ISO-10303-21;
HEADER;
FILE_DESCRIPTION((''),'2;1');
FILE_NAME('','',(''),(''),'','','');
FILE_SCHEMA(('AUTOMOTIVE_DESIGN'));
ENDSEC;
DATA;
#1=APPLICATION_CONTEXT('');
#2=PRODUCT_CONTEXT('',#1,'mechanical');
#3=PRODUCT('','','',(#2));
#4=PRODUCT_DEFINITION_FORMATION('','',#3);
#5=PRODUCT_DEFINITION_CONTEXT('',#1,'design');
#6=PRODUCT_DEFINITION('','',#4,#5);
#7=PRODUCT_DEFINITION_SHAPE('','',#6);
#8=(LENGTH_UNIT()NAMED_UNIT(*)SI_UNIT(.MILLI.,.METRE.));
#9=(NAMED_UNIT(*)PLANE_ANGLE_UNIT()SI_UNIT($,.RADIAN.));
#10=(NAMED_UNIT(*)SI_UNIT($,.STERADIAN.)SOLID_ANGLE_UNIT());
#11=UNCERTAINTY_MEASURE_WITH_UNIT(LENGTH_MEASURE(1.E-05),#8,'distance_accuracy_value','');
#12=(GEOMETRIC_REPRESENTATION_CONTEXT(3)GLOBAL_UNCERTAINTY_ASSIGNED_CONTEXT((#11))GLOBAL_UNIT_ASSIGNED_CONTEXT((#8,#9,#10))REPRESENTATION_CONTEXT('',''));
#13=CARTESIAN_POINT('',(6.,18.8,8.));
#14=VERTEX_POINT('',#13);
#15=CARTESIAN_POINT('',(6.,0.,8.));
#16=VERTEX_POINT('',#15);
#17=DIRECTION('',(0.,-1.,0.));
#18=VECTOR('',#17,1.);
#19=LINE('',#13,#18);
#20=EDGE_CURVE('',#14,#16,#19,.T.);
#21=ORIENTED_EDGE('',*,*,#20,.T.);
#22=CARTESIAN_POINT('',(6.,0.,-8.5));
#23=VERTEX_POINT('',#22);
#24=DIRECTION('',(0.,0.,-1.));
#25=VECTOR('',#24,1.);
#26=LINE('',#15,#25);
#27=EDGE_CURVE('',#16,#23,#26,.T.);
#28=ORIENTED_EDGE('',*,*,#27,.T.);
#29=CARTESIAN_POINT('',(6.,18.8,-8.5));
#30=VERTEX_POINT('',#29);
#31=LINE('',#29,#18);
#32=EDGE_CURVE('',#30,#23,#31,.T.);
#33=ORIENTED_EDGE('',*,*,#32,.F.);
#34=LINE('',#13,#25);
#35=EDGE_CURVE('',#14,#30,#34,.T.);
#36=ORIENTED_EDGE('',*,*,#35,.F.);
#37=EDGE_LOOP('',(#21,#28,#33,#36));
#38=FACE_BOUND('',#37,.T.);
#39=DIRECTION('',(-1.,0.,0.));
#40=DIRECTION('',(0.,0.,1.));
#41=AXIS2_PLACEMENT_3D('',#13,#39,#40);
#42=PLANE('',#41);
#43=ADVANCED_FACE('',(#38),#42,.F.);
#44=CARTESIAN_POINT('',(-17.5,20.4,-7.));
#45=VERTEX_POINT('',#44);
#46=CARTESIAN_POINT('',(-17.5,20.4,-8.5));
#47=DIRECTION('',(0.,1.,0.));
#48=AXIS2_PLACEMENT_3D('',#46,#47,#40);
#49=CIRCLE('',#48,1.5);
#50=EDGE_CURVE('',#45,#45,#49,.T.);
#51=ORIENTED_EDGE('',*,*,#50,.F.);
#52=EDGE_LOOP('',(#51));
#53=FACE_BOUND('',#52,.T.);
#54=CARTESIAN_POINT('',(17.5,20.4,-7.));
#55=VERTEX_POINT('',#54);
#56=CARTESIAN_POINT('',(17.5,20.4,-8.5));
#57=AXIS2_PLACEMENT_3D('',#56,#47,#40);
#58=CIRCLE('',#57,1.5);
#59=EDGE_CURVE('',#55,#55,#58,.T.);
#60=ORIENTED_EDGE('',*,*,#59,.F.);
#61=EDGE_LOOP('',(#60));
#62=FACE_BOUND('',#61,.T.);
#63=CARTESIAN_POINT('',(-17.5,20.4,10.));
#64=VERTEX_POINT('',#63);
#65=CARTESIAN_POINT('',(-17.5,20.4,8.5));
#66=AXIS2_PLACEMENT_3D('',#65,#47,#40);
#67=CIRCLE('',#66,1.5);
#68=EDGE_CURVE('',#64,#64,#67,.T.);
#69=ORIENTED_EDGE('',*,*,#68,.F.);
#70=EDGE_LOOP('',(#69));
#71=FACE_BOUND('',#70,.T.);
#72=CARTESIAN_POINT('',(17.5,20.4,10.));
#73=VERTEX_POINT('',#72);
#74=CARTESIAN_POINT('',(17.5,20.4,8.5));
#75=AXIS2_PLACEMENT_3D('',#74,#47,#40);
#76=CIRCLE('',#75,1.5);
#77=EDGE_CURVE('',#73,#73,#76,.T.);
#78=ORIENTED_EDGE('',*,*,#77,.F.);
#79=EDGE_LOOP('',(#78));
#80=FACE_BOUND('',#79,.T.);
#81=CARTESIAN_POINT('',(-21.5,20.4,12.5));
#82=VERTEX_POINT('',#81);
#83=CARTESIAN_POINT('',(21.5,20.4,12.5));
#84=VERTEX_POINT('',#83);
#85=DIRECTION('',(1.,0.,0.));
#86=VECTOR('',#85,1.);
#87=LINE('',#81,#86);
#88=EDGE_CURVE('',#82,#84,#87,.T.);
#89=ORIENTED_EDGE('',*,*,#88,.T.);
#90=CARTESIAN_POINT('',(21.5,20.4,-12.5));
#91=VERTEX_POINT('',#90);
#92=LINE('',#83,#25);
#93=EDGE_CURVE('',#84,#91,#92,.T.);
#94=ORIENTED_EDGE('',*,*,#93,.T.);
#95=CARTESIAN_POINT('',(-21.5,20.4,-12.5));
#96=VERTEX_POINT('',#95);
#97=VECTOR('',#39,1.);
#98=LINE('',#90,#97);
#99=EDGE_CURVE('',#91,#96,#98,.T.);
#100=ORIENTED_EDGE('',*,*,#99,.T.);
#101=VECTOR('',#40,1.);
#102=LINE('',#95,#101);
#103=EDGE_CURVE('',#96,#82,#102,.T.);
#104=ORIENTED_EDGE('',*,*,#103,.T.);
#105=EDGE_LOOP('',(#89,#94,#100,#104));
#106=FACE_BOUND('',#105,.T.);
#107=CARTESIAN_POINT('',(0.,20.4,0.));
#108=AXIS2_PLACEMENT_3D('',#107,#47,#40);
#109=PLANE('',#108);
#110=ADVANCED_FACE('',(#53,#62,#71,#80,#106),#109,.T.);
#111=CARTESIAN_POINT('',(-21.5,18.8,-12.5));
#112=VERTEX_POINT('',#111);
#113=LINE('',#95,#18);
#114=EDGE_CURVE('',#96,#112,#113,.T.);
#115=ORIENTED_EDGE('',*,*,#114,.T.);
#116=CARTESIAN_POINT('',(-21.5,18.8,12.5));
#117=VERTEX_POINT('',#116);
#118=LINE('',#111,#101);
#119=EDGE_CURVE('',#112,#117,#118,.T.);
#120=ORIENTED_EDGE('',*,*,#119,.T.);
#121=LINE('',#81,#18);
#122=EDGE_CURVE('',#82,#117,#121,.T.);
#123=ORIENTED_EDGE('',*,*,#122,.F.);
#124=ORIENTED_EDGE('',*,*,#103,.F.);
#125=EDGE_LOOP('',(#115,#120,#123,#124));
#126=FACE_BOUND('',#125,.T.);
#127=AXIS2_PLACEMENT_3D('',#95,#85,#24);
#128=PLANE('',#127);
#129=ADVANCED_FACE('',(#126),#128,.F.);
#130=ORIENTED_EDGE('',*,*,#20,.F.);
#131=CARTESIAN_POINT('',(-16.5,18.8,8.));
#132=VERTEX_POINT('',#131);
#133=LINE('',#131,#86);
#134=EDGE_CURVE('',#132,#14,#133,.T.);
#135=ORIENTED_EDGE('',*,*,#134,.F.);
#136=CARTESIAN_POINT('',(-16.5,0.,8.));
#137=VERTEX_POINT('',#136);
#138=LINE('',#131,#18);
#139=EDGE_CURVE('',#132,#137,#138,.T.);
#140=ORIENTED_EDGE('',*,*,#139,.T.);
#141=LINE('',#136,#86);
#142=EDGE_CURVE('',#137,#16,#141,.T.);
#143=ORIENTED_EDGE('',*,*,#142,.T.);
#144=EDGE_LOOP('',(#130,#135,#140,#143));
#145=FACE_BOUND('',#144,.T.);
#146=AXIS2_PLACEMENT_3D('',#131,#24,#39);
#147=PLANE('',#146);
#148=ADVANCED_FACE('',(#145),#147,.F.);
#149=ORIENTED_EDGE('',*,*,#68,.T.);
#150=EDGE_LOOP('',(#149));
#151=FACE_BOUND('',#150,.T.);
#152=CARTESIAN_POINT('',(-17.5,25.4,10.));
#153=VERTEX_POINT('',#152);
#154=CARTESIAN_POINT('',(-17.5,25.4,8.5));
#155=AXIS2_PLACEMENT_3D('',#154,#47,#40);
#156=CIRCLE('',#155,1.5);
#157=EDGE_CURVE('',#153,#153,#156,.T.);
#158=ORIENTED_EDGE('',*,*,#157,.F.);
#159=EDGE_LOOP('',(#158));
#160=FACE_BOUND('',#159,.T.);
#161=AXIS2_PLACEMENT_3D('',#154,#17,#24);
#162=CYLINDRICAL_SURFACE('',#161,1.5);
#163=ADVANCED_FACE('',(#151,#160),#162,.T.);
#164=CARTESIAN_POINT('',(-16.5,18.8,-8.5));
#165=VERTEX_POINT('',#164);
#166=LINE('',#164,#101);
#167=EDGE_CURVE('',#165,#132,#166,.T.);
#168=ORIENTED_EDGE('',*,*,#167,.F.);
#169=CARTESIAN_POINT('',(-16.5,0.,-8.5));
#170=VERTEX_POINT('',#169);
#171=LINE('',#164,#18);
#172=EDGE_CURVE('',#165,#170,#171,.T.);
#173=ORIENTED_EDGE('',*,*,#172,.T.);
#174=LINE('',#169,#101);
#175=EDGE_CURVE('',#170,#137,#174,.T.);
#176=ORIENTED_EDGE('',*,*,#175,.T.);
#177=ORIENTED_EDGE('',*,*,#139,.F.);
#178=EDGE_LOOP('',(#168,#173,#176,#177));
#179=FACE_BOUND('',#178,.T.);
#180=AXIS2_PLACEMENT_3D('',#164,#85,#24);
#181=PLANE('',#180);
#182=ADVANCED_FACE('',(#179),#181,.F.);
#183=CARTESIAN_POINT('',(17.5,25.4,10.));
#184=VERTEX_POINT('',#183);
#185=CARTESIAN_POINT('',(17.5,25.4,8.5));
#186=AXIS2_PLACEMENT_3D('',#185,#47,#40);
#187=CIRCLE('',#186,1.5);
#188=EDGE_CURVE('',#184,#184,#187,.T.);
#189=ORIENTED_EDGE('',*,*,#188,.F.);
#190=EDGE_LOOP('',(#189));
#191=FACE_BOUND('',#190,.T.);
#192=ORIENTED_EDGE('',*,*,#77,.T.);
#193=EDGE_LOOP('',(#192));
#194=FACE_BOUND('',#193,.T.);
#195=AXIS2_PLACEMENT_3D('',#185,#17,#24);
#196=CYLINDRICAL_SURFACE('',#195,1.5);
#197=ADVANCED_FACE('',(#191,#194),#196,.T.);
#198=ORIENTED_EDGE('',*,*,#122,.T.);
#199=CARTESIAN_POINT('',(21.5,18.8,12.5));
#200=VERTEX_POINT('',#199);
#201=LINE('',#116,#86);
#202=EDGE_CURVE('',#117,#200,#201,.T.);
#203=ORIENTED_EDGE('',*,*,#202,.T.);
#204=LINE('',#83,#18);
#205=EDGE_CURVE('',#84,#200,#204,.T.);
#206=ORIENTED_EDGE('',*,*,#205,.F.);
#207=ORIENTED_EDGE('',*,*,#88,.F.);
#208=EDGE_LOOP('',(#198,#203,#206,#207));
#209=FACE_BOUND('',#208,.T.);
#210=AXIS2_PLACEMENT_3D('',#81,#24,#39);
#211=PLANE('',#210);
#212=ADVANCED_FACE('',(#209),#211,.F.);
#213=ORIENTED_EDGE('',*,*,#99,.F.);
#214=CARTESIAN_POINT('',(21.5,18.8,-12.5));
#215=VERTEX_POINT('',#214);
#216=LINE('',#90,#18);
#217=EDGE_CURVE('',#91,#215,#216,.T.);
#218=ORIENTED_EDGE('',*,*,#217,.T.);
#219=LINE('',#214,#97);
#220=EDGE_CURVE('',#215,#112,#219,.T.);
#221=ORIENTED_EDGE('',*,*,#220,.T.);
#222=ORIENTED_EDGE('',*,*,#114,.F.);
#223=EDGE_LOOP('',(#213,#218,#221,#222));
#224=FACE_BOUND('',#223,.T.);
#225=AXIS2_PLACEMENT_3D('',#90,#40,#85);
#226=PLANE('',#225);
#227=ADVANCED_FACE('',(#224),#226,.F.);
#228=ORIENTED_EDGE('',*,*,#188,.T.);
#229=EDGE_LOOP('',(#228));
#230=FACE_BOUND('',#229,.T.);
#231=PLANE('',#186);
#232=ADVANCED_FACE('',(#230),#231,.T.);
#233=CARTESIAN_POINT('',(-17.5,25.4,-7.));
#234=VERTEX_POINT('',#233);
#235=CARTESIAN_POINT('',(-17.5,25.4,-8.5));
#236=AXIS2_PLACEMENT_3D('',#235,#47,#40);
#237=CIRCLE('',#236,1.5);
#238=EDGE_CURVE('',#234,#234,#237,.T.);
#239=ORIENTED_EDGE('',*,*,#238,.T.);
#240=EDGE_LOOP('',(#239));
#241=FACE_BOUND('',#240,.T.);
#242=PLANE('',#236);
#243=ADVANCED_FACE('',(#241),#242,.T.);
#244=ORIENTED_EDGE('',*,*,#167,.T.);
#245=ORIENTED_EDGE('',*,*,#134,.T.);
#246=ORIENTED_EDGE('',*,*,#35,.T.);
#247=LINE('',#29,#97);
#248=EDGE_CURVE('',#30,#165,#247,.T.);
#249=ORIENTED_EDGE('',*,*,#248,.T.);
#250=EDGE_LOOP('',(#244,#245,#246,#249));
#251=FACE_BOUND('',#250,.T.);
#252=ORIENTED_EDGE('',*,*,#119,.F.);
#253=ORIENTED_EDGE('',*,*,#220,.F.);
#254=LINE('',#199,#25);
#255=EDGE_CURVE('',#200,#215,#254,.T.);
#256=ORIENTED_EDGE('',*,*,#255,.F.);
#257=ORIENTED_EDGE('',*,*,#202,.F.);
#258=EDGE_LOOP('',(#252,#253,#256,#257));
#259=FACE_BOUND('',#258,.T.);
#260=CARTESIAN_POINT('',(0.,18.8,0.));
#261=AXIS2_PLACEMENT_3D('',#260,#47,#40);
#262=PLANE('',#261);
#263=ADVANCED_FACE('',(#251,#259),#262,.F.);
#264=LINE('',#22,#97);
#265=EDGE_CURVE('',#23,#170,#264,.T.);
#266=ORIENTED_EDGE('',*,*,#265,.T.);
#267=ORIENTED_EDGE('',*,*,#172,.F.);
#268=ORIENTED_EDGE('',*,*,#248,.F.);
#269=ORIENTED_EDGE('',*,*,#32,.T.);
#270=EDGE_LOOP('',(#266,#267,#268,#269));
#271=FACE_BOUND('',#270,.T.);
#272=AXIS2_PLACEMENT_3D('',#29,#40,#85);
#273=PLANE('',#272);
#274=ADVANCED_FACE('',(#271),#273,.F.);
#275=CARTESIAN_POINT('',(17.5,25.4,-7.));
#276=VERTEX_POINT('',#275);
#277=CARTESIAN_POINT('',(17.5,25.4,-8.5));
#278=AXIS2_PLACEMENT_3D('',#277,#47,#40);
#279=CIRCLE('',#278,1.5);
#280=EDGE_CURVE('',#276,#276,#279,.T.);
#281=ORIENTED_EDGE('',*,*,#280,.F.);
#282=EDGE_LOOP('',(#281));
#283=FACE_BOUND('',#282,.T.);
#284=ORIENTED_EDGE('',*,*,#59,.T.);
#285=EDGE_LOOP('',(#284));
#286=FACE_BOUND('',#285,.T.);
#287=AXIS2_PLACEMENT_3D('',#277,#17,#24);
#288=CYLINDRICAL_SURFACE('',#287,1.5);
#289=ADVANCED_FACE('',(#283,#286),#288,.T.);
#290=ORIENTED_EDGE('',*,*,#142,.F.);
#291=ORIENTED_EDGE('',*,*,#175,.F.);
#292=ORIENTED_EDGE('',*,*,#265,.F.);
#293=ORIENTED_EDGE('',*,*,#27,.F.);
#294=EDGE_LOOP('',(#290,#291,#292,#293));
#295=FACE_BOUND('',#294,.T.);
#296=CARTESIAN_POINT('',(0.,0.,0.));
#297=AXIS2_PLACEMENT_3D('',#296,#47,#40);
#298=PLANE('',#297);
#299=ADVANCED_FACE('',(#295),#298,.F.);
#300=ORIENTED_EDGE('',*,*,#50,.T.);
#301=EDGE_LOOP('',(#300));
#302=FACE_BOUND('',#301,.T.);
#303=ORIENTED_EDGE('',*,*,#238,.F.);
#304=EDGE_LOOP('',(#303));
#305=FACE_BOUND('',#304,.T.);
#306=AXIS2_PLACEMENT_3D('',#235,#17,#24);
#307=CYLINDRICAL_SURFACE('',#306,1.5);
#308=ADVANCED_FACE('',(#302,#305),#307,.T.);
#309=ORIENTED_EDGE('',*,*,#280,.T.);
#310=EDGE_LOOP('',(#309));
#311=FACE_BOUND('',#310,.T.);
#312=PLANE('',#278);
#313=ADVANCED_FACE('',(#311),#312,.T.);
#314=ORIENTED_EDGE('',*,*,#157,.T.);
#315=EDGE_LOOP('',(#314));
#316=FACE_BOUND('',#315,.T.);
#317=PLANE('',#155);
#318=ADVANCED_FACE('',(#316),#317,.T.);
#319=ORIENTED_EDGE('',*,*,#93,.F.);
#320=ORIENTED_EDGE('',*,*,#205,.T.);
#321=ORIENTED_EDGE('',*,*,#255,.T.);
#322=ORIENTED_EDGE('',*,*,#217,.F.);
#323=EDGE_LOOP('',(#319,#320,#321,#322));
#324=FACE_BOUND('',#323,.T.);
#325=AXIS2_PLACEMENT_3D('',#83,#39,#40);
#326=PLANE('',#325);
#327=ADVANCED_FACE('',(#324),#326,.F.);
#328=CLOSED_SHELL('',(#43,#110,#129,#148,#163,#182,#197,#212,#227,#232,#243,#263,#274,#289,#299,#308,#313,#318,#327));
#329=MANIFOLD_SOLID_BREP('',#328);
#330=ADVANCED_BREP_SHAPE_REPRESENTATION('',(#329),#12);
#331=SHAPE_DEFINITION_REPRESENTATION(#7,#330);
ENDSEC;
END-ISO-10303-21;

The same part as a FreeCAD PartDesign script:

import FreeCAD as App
import Part
import Sketcher
Q = App.Units.Quantity


def add_polygon(sketch, points):
    """Adds a closed chain of lines whose ends are joined by coincident constraints."""
    first, n = sketch.GeometryCount, len(points)
    for a, b in zip(points, points[1:] + points[:1]):
        sketch.addGeometry(Part.LineSegment(App.Vector(*a, 0), App.Vector(*b, 0)), False)
    for i in range(n):
        sketch.addConstraint(Sketcher.Constraint("Coincident", first + i, 2, first + (i + 1) % n, 1))

doc = App.newDocument("Part")
params = doc.addObject("Spreadsheet::Sheet", "Params")
for row, (alias, value) in enumerate([
    ("sketch1_diameter", "3 mm"),
    ("pad1_length", "5 mm"),
    ("sketch2_diameter", "3 mm"),
    ("pad2_length", "5 mm"),
    ("sketch3_diameter", "3 mm"),
    ("pad3_length", "5 mm"),
    ("sketch4_diameter", "3 mm"),
    ("pad4_length", "5 mm"),
    ("sketch5_width", "43 mm"),
    ("sketch5_height", "25 mm"),
    ("pad5_length", "1.6 mm"),
    ("sketch6_width", "22.5 mm"),
    ("sketch6_height", "16.5 mm"),
    ("pad6_length", "18.8 mm"),
], start=1):
    params.set(f"A{row}", alias)
    params.set(f"B{row}", "=" + value)
    params.setAlias(f"B{row}", alias)

body = doc.addObject("PartDesign::Body", "Body")

sketch1 = doc.addObject("Sketcher::SketchObject", "Sketch")
body.addObject(sketch1)
sketch1.AttachmentSupport = (doc.XZ_Plane, [""])
sketch1.MapMode = "FlatFace"
sketch1.AttachmentOffset = App.Placement(App.Vector(0, 0, -20.4), App.Rotation())
sketch1.addGeometry(Part.Circle(App.Vector(-17.5, -8.5, 0), App.Vector(0, 0, 1), 1.5), False)
sketch1.addConstraint([
    Sketcher.Constraint("Diameter", 0, Q("3 mm")),
    Sketcher.Constraint("DistanceX", 0, 3, -1, 1, Q("17.5 mm")),
    Sketcher.Constraint("DistanceY", 0, 3, -1, 1, Q("8.5 mm")),
])
sketch1.setExpression("Constraints[0]", "Params.sketch1_diameter")
pad1 = doc.addObject("PartDesign::Pad", "Pad")
body.addObject(pad1)
pad1.Profile = sketch1
pad1.setExpression("Length", "Params.pad1_length")
pad1.Reversed = True
body2 = doc.addObject("PartDesign::Body", "Body001")

sketch2 = doc.addObject("Sketcher::SketchObject", "Sketch001")
body2.addObject(sketch2)
sketch2.AttachmentSupport = (doc.getObject("XZ_Plane001"), [""])
sketch2.MapMode = "FlatFace"
sketch2.AttachmentOffset = App.Placement(App.Vector(0, 0, -20.4), App.Rotation())
sketch2.addGeometry(Part.Circle(App.Vector(-17.5, 8.5, 0), App.Vector(0, 0, 1), 1.5), False)
sketch2.addConstraint([
    Sketcher.Constraint("Diameter", 0, Q("3 mm")),
    Sketcher.Constraint("DistanceX", 0, 3, -1, 1, Q("17.5 mm")),
    Sketcher.Constraint("DistanceY", -1, 1, 0, 3, Q("8.5 mm")),
])
sketch2.setExpression("Constraints[0]", "Params.sketch2_diameter")
pad2 = doc.addObject("PartDesign::Pad", "Pad001")
body2.addObject(pad2)
pad2.Profile = sketch2
pad2.setExpression("Length", "Params.pad2_length")
pad2.Reversed = True
body3 = doc.addObject("PartDesign::Body", "Body002")

sketch3 = doc.addObject("Sketcher::SketchObject", "Sketch002")
body3.addObject(sketch3)
sketch3.AttachmentSupport = (doc.getObject("XZ_Plane002"), [""])
sketch3.MapMode = "FlatFace"
sketch3.AttachmentOffset = App.Placement(App.Vector(0, 0, -20.4), App.Rotation())
sketch3.addGeometry(Part.Circle(App.Vector(17.5, -8.5, 0), App.Vector(0, 0, 1), 1.5), False)
sketch3.addConstraint([
    Sketcher.Constraint("Diameter", 0, Q("3 mm")),
    Sketcher.Constraint("DistanceX", -1, 1, 0, 3, Q("17.5 mm")),
    Sketcher.Constraint("DistanceY", 0, 3, -1, 1, Q("8.5 mm")),
])
sketch3.setExpression("Constraints[0]", "Params.sketch3_diameter")
pad3 = doc.addObject("PartDesign::Pad", "Pad002")
body3.addObject(pad3)
pad3.Profile = sketch3
pad3.setExpression("Length", "Params.pad3_length")
pad3.Reversed = True
body4 = doc.addObject("PartDesign::Body", "Body003")

sketch4 = doc.addObject("Sketcher::SketchObject", "Sketch003")
body4.addObject(sketch4)
sketch4.AttachmentSupport = (doc.getObject("XZ_Plane003"), [""])
sketch4.MapMode = "FlatFace"
sketch4.AttachmentOffset = App.Placement(App.Vector(0, 0, -20.4), App.Rotation())
sketch4.addGeometry(Part.Circle(App.Vector(17.5, 8.5, 0), App.Vector(0, 0, 1), 1.5), False)
sketch4.addConstraint([
    Sketcher.Constraint("Diameter", 0, Q("3 mm")),
    Sketcher.Constraint("DistanceX", -1, 1, 0, 3, Q("17.5 mm")),
    Sketcher.Constraint("DistanceY", -1, 1, 0, 3, Q("8.5 mm")),
])
sketch4.setExpression("Constraints[0]", "Params.sketch4_diameter")
pad4 = doc.addObject("PartDesign::Pad", "Pad003")
body4.addObject(pad4)
pad4.Profile = sketch4
pad4.setExpression("Length", "Params.pad4_length")
pad4.Reversed = True
body.AllowCompound = True
doc.recompute()

boolean = doc.addObject("PartDesign::Boolean", "Boolean")
body.addObject(boolean)
boolean.Type = "Fuse"
boolean.addObjects([body2])
doc.recompute()

boolean2 = doc.addObject("PartDesign::Boolean", "Boolean001")
body.addObject(boolean2)
boolean2.Type = "Fuse"
boolean2.addObjects([body3])
doc.recompute()

boolean3 = doc.addObject("PartDesign::Boolean", "Boolean002")
body.addObject(boolean3)
boolean3.Type = "Fuse"
boolean3.addObjects([body4])

sketch5 = doc.addObject("Sketcher::SketchObject", "Sketch004")
body.addObject(sketch5)
sketch5.AttachmentSupport = (doc.XZ_Plane, [""])
sketch5.MapMode = "FlatFace"
sketch5.AttachmentOffset = App.Placement(App.Vector(0, 0, -18.8), App.Rotation())
add_polygon(sketch5, [(-22, -12), (-22, 12), (22, 12), (22, -12)])
sketch5.addConstraint([
    Sketcher.Constraint("Vertical", 0),
    Sketcher.Constraint("Horizontal", 1),
    Sketcher.Constraint("Vertical", 2),
    Sketcher.Constraint("Horizontal", 3),
    Sketcher.Constraint("Symmetric", 0, 2, 2, 2, -1, 1),
    Sketcher.Constraint("DistanceX", 1, 1, 1, 2, Q("43 mm")),
    Sketcher.Constraint("DistanceY", 0, 1, 0, 2, Q("25 mm")),
])
sketch5.setExpression("Constraints[9]", "Params.sketch5_width")
sketch5.setExpression("Constraints[10]", "Params.sketch5_height")
pad5 = doc.addObject("PartDesign::Pad", "Pad004")
body.addObject(pad5)
pad5.Profile = sketch5
pad5.setExpression("Length", "Params.pad5_length")
pad5.Reversed = True

sketch6 = doc.addObject("Sketcher::SketchObject", "Sketch005")
body.addObject(sketch6)
sketch6.AttachmentSupport = (doc.XZ_Plane, [""])
sketch6.MapMode = "FlatFace"
add_polygon(sketch6, [(-16, -8), (-16, 8), (6, 8), (6, -8)])
sketch6.addConstraint([
    Sketcher.Constraint("Vertical", 0),
    Sketcher.Constraint("Horizontal", 1),
    Sketcher.Constraint("Vertical", 2),
    Sketcher.Constraint("Horizontal", 3),
    Sketcher.Constraint("DistanceX", 1, 1, 1, 2, Q("22.5 mm")),
    Sketcher.Constraint("DistanceY", 0, 1, 0, 2, Q("16.5 mm")),
    Sketcher.Constraint("DistanceY", -1, 1, 0, 2, Q("8 mm")),
    Sketcher.Constraint("DistanceX", -1, 1, 1, 2, Q("6 mm")),
])
sketch6.setExpression("Constraints[8]", "Params.sketch6_width")
sketch6.setExpression("Constraints[9]", "Params.sketch6_height")
pad6 = doc.addObject("PartDesign::Pad", "Pad005")
body.addObject(pad6)
pad6.Profile = sketch6
pad6.setExpression("Length", "Params.pad6_length")
pad6.Reversed = True

doc.recompute()
